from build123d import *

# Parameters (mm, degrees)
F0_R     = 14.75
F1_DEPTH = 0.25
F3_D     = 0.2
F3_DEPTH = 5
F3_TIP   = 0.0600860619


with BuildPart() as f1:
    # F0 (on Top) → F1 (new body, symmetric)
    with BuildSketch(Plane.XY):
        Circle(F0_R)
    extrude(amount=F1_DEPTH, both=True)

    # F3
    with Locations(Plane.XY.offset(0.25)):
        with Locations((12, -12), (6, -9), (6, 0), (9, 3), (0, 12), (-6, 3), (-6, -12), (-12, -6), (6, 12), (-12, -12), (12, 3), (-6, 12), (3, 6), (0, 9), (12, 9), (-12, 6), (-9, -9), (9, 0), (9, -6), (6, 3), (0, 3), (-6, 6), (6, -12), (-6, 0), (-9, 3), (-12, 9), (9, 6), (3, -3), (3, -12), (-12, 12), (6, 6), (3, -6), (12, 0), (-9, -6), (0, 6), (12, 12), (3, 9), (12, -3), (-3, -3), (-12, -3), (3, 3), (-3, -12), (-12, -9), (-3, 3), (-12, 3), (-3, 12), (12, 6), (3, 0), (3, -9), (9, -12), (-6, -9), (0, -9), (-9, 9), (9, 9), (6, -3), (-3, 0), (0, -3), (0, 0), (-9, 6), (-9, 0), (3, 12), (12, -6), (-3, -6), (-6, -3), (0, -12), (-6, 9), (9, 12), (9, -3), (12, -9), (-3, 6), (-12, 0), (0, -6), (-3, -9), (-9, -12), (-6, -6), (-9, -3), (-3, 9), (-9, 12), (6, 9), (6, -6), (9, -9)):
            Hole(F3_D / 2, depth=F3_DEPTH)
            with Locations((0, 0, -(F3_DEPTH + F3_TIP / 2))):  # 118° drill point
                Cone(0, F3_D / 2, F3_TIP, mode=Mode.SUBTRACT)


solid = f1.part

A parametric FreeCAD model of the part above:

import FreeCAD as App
import Part
import Sketcher
from FreeCAD import Vector
Q = App.Units.Quantity

doc = App.newDocument("Part")
params = doc.addObject("Spreadsheet::Sheet", "Params")
for row, (alias, value) in enumerate([
    ("sketch1_diameter", "29.5 mm"),
    ("pad1_length", "0.5 mm"),
    ("sketch2_diameter", "0.2 mm"),
    ("hole_diameter", "0.2 mm"),
    ("hole_depth", "5 mm"),
], start=1):
    params.set(f"A{row}", alias)
    params.set(f"B{row}", "=" + value)
    params.setAlias(f"B{row}", alias)

body = doc.addObject("PartDesign::Body", "Body")

# Sketch on XY plane
sketch1 = body.newObject("Sketcher::SketchObject", "Sketch")
sketch1.AttachmentSupport = (doc.getObject("XY_Plane"), [""])
sketch1.MapMode = "FlatFace"
sketch1.addGeometry(Part.Circle(Vector(0, 0, 0), Vector(0, 0, 1), 15), False)
sketch1.addConstraint([
    Sketcher.Constraint("Coincident", 0, 3, -1, 1),
    Sketcher.Constraint("Diameter", 0, Q("29.5 mm")),
])
sketch1.setExpression("Constraints[1]", "Params.sketch1_diameter")
pad1 = body.newObject("PartDesign::Pad", "Pad")
pad1.Profile = sketch1
pad1.setExpression("Length", "Params.pad1_length")
pad1.Midplane = True

# Sketch on XY plane
sketch2 = body.newObject("Sketcher::SketchObject", "Sketch001")
sketch2.AttachmentSupport = (doc.getObject("XY_Plane"), [""])
sketch2.MapMode = "FlatFace"
sketch2.AttachmentOffset = App.Placement(Vector(0, 0, 0.25), App.Rotation())
sketch2.addGeometry([
    Part.Circle(Vector(12, -12, 0), Vector(0, 0, 1), 0.1),  # 0
    Part.Circle(Vector(6, -9, 0), Vector(0, 0, 1), 0.1),  # 1
    Part.Circle(Vector(6, 0, 0), Vector(0, 0, 1), 0.1),  # 2
    Part.Circle(Vector(9, 3, 0), Vector(0, 0, 1), 0.1),  # 3
    Part.Circle(Vector(0, 12, 0), Vector(0, 0, 1), 0.1),  # 4
    Part.Circle(Vector(-6, 3, 0), Vector(0, 0, 1), 0.1),  # 5
    Part.Circle(Vector(-6, -12, 0), Vector(0, 0, 1), 0.1),  # 6
    Part.Circle(Vector(-12, -6, 0), Vector(0, 0, 1), 0.1),  # 7
    Part.Circle(Vector(6, 12, 0), Vector(0, 0, 1), 0.1),  # 8
    Part.Circle(Vector(-12, -12, 0), Vector(0, 0, 1), 0.1),  # 9
    Part.Circle(Vector(12, 3, 0), Vector(0, 0, 1), 0.1),  # 10
    Part.Circle(Vector(-6, 12, 0), Vector(0, 0, 1), 0.1),  # 11
    Part.Circle(Vector(3, 6, 0), Vector(0, 0, 1), 0.1),  # 12
    Part.Circle(Vector(0, 9, 0), Vector(0, 0, 1), 0.1),  # 13
    Part.Circle(Vector(12, 9, 0), Vector(0, 0, 1), 0.1),  # 14
    Part.Circle(Vector(-12, 6, 0), Vector(0, 0, 1), 0.1),  # 15
    Part.Circle(Vector(-9, -9, 0), Vector(0, 0, 1), 0.1),  # 16
    Part.Circle(Vector(9, 0, 0), Vector(0, 0, 1), 0.1),  # 17
    Part.Circle(Vector(9, -6, 0), Vector(0, 0, 1), 0.1),  # 18
    Part.Circle(Vector(6, 3, 0), Vector(0, 0, 1), 0.1),  # 19
    Part.Circle(Vector(0, 3, 0), Vector(0, 0, 1), 0.1),  # 20
    Part.Circle(Vector(-6, 6, 0), Vector(0, 0, 1), 0.1),  # 21
    Part.Circle(Vector(6, -12, 0), Vector(0, 0, 1), 0.1),  # 22
    Part.Circle(Vector(-6, 0, 0), Vector(0, 0, 1), 0.1),  # 23
    Part.Circle(Vector(-9, 3, 0), Vector(0, 0, 1), 0.1),  # 24
    Part.Circle(Vector(-12, 9, 0), Vector(0, 0, 1), 0.1),  # 25
    Part.Circle(Vector(9, 6, 0), Vector(0, 0, 1), 0.1),  # 26
    Part.Circle(Vector(3, -3, 0), Vector(0, 0, 1), 0.1),  # 27
    Part.Circle(Vector(3, -12, 0), Vector(0, 0, 1), 0.1),  # 28
    Part.Circle(Vector(-12, 12, 0), Vector(0, 0, 1), 0.1),  # 29
    Part.Circle(Vector(6, 6, 0), Vector(0, 0, 1), 0.1),  # 30
    Part.Circle(Vector(3, -6, 0), Vector(0, 0, 1), 0.1),  # 31
    Part.Circle(Vector(12, 0, 0), Vector(0, 0, 1), 0.1),  # 32
    Part.Circle(Vector(-9, -6, 0), Vector(0, 0, 1), 0.1),  # 33
    Part.Circle(Vector(0, 6, 0), Vector(0, 0, 1), 0.1),  # 34
    Part.Circle(Vector(12, 12, 0), Vector(0, 0, 1), 0.1),  # 35
    Part.Circle(Vector(3, 9, 0), Vector(0, 0, 1), 0.1),  # 36
    Part.Circle(Vector(12, -3, 0), Vector(0, 0, 1), 0.1),  # 37
    Part.Circle(Vector(-3, -3, 0), Vector(0, 0, 1), 0.1),  # 38
    Part.Circle(Vector(-12, -3, 0), Vector(0, 0, 1), 0.1),  # 39
    Part.Circle(Vector(3, 3, 0), Vector(0, 0, 1), 0.1),  # 40
    Part.Circle(Vector(-3, -12, 0), Vector(0, 0, 1), 0.1),  # 41
    Part.Circle(Vector(-12, -9, 0), Vector(0, 0, 1), 0.1),  # 42
    Part.Circle(Vector(-3, 3, 0), Vector(0, 0, 1), 0.1),  # 43
    Part.Circle(Vector(-12, 3, 0), Vector(0, 0, 1), 0.1),  # 44
    Part.Circle(Vector(-3, 12, 0), Vector(0, 0, 1), 0.1),  # 45
    Part.Circle(Vector(12, 6, 0), Vector(0, 0, 1), 0.1),  # 46
    Part.Circle(Vector(3, 0, 0), Vector(0, 0, 1), 0.1),  # 47
    Part.Circle(Vector(3, -9, 0), Vector(0, 0, 1), 0.1),  # 48
    Part.Circle(Vector(9, -12, 0), Vector(0, 0, 1), 0.1),  # 49
    Part.Circle(Vector(-6, -9, 0), Vector(0, 0, 1), 0.1),  # 50
    Part.Circle(Vector(0, -9, 0), Vector(0, 0, 1), 0.1),  # 51
    Part.Circle(Vector(-9, 9, 0), Vector(0, 0, 1), 0.1),  # 52
    Part.Circle(Vector(9, 9, 0), Vector(0, 0, 1), 0.1),  # 53
    Part.Circle(Vector(6, -3, 0), Vector(0, 0, 1), 0.1),  # 54
    Part.Circle(Vector(-3, 0, 0), Vector(0, 0, 1), 0.1),  # 55
    Part.Circle(Vector(0, -3, 0), Vector(0, 0, 1), 0.1),  # 56
    Part.Circle(Vector(0, 0, 0), Vector(0, 0, 1), 0.1),  # 57
    Part.Circle(Vector(-9, 6, 0), Vector(0, 0, 1), 0.1),  # 58
    Part.Circle(Vector(-9, 0, 0), Vector(0, 0, 1), 0.1),  # 59
    Part.Circle(Vector(3, 12, 0), Vector(0, 0, 1), 0.1),  # 60
    Part.Circle(Vector(12, -6, 0), Vector(0, 0, 1), 0.1),  # 61
    Part.Circle(Vector(-3, -6, 0), Vector(0, 0, 1), 0.1),  # 62
    Part.Circle(Vector(-6, -3, 0), Vector(0, 0, 1), 0.1),  # 63
    Part.Circle(Vector(0, -12, 0), Vector(0, 0, 1), 0.1),  # 64
    Part.Circle(Vector(-6, 9, 0), Vector(0, 0, 1), 0.1),  # 65
    Part.Circle(Vector(9, 12, 0), Vector(0, 0, 1), 0.1),  # 66
    Part.Circle(Vector(9, -3, 0), Vector(0, 0, 1), 0.1),  # 67
    Part.Circle(Vector(12, -9, 0), Vector(0, 0, 1), 0.1),  # 68
    Part.Circle(Vector(-3, 6, 0), Vector(0, 0, 1), 0.1),  # 69
    Part.Circle(Vector(-12, 0, 0), Vector(0, 0, 1), 0.1),  # 70
    Part.Circle(Vector(0, -6, 0), Vector(0, 0, 1), 0.1),  # 71
    Part.Circle(Vector(-3, -9, 0), Vector(0, 0, 1), 0.1),  # 72
    Part.Circle(Vector(-9, -12, 0), Vector(0, 0, 1), 0.1),  # 73
    Part.Circle(Vector(-6, -6, 0), Vector(0, 0, 1), 0.1),  # 74
    Part.Circle(Vector(-9, -3, 0), Vector(0, 0, 1), 0.1),  # 75
    Part.Circle(Vector(-3, 9, 0), Vector(0, 0, 1), 0.1),  # 76
    Part.Circle(Vector(-9, 12, 0), Vector(0, 0, 1), 0.1),  # 77
    Part.Circle(Vector(6, 9, 0), Vector(0, 0, 1), 0.1),  # 78
    Part.Circle(Vector(6, -6, 0), Vector(0, 0, 1), 0.1),  # 79
    Part.Circle(Vector(9, -9, 0), Vector(0, 0, 1), 0.1),  # 80
], False)
sketch2.addConstraint([
    Sketcher.Constraint("Coincident", 57, 3, -1, 1),
    Sketcher.Constraint("Equal", 0, 1),
    Sketcher.Constraint("Equal", 1, 2),
    Sketcher.Constraint("Equal", 2, 3),
    Sketcher.Constraint("Equal", 3, 4),
    Sketcher.Constraint("Equal", 4, 5),
    Sketcher.Constraint("Equal", 5, 6),
    Sketcher.Constraint("Equal", 6, 7),
    Sketcher.Constraint("Equal", 7, 8),
    Sketcher.Constraint("Equal", 8, 9),
    Sketcher.Constraint("Equal", 9, 10),
    Sketcher.Constraint("Equal", 10, 11),
    Sketcher.Constraint("Equal", 11, 12),
    Sketcher.Constraint("Equal", 12, 13),
    Sketcher.Constraint("Equal", 13, 14),
    Sketcher.Constraint("Equal", 14, 15),
    Sketcher.Constraint("Equal", 15, 16),
    Sketcher.Constraint("Equal", 16, 17),
    Sketcher.Constraint("Equal", 17, 18),
    Sketcher.Constraint("Equal", 18, 19),
    Sketcher.Constraint("Equal", 19, 20),
    Sketcher.Constraint("Equal", 20, 21),
    Sketcher.Constraint("Equal", 21, 22),
    Sketcher.Constraint("Equal", 22, 23),
    Sketcher.Constraint("Equal", 23, 24),
    Sketcher.Constraint("Equal", 24, 25),
    Sketcher.Constraint("Equal", 25, 26),
    Sketcher.Constraint("Equal", 26, 27),
    Sketcher.Constraint("Equal", 27, 28),
    Sketcher.Constraint("Equal", 28, 29),
    Sketcher.Constraint("Equal", 29, 30),
    Sketcher.Constraint("Equal", 30, 31),
    Sketcher.Constraint("Equal", 31, 32),
    Sketcher.Constraint("Equal", 32, 33),
    Sketcher.Constraint("Equal", 33, 34),
    Sketcher.Constraint("Equal", 34, 35),
    Sketcher.Constraint("Equal", 35, 36),
    Sketcher.Constraint("Equal", 36, 37),
    Sketcher.Constraint("Equal", 37, 38),
    Sketcher.Constraint("Equal", 38, 39),
    Sketcher.Constraint("Equal", 39, 40),
    Sketcher.Constraint("Equal", 40, 41),
    Sketcher.Constraint("Equal", 41, 42),
    Sketcher.Constraint("Equal", 42, 43),
    Sketcher.Constraint("Equal", 43, 44),
    Sketcher.Constraint("Equal", 44, 45),
    Sketcher.Constraint("Equal", 45, 46),
    Sketcher.Constraint("Equal", 46, 47),
    Sketcher.Constraint("Equal", 47, 48),
    Sketcher.Constraint("Equal", 48, 49),
    Sketcher.Constraint("Equal", 49, 50),
    Sketcher.Constraint("Equal", 50, 51),
    Sketcher.Constraint("Equal", 51, 52),
    Sketcher.Constraint("Equal", 52, 53),
    Sketcher.Constraint("Equal", 53, 54),
    Sketcher.Constraint("Equal", 54, 55),
    Sketcher.Constraint("Equal", 55, 56),
    Sketcher.Constraint("Equal", 56, 57),
    Sketcher.Constraint("Equal", 57, 58),
    Sketcher.Constraint("Equal", 58, 59),
    Sketcher.Constraint("Equal", 59, 60),
    Sketcher.Constraint("Equal", 60, 61),
    Sketcher.Constraint("Equal", 61, 62),
    Sketcher.Constraint("Equal", 62, 63),
    Sketcher.Constraint("Equal", 63, 64),
    Sketcher.Constraint("Equal", 64, 65),
    Sketcher.Constraint("Equal", 65, 66),
    Sketcher.Constraint("Equal", 66, 67),
    Sketcher.Constraint("Equal", 67, 68),
    Sketcher.Constraint("Equal", 68, 69),
    Sketcher.Constraint("Equal", 69, 70),
    Sketcher.Constraint("Equal", 70, 71),
    Sketcher.Constraint("Equal", 71, 72),
    Sketcher.Constraint("Equal", 72, 73),
    Sketcher.Constraint("Equal", 73, 74),
    Sketcher.Constraint("Equal", 74, 75),
    Sketcher.Constraint("Equal", 75, 76),
    Sketcher.Constraint("Equal", 76, 77),
    Sketcher.Constraint("Equal", 77, 78),
    Sketcher.Constraint("Equal", 78, 79),
    Sketcher.Constraint("Equal", 79, 80),
    Sketcher.Constraint("Symmetric", 6, 3, 8, 3, -1, 1),
    Sketcher.Constraint("Symmetric", 11, 3, 22, 3, -1, 1),
    Sketcher.Constraint("Symmetric", 2, 3, 23, 3, -1, 1),
    Sketcher.Constraint("Symmetric", 0, 3, 29, 3, -1, 1),
    Sketcher.Constraint("Symmetric", 26, 3, 33, 3, -1, 1),
    Sketcher.Constraint("Symmetric", 9, 3, 35, 3, -1, 1),
    Sketcher.Constraint("Symmetric", 10, 3, 39, 3, -1, 1),
    Sketcher.Constraint("Symmetric", 38, 3, 40, 3, -1, 1),
    Sketcher.Constraint("Symmetric", 14, 3, 42, 3, -1, 1),
    Sketcher.Constraint("Symmetric", 27, 3, 43, 3, -1, 1),
    Sketcher.Constraint("Symmetric", 37, 3, 44, 3, -1, 1),
    Sketcher.Constraint("Symmetric", 28, 3, 45, 3, -1, 1),
    Sketcher.Constraint("Symmetric", 7, 3, 46, 3, -1, 1),
    Sketcher.Constraint("Symmetric", 13, 3, 51, 3, -1, 1),
    Sketcher.Constraint("Symmetric", 16, 3, 53, 3, -1, 1),
    Sketcher.Constraint("Symmetric", 5, 3, 54, 3, -1, 1),
    Sketcher.Constraint("Symmetric", 47, 3, 55, 3, -1, 1),
    Sketcher.Constraint("Symmetric", 20, 3, 56, 3, -1, 1),
    Sketcher.Constraint("Symmetric", 18, 3, 58, 3, -1, 1),
    Sketcher.Constraint("Symmetric", 17, 3, 59, 3, -1, 1),
    Sketcher.Constraint("Symmetric", 41, 3, 60, 3, -1, 1),
    Sketcher.Constraint("Symmetric", 15, 3, 61, 3, -1, 1),
    Sketcher.Constraint("Symmetric", 12, 3, 62, 3, -1, 1),
    Sketcher.Constraint("Symmetric", 19, 3, 63, 3, -1, 1),
    Sketcher.Constraint("Symmetric", 4, 3, 64, 3, -1, 1),
    Sketcher.Constraint("Symmetric", 1, 3, 65, 3, -1, 1),
    Sketcher.Constraint("Symmetric", 24, 3, 67, 3, -1, 1),
    Sketcher.Constraint("Symmetric", 25, 3, 68, 3, -1, 1),
    Sketcher.Constraint("Symmetric", 31, 3, 69, 3, -1, 1),
    Sketcher.Constraint("Symmetric", 32, 3, 70, 3, -1, 1),
    Sketcher.Constraint("Symmetric", 34, 3, 71, 3, -1, 1),
    Sketcher.Constraint("Symmetric", 36, 3, 72, 3, -1, 1),
    Sketcher.Constraint("Symmetric", 66, 3, 73, 3, -1, 1),
    Sketcher.Constraint("Symmetric", 30, 3, 74, 3, -1, 1),
    Sketcher.Constraint("Symmetric", 3, 3, 75, 3, -1, 1),
    Sketcher.Constraint("Symmetric", 48, 3, 76, 3, -1, 1),
    Sketcher.Constraint("Symmetric", 49, 3, 77, 3, -1, 1),
    Sketcher.Constraint("Symmetric", 50, 3, 78, 3, -1, 1),
    Sketcher.Constraint("Symmetric", 21, 3, 79, 3, -1, 1),
    Sketcher.Constraint("Symmetric", 52, 3, 80, 3, -1, 1),
    Sketcher.Constraint("Symmetric", 0, 3, 9, 3, -2),
    Sketcher.Constraint("Symmetric", 8, 3, 11, 3, -2),
    Sketcher.Constraint("Symmetric", 5, 3, 19, 3, -2),
    Sketcher.Constraint("Symmetric", 3, 3, 24, 3, -2),
    Sketcher.Constraint("Symmetric", 14, 3, 25, 3, -2),
    Sketcher.Constraint("Symmetric", 21, 3, 30, 3, -2),
    Sketcher.Constraint("Symmetric", 18, 3, 33, 3, -2),
    Sketcher.Constraint("Symmetric", 27, 3, 38, 3, -2),
    Sketcher.Constraint("Symmetric", 37, 3, 39, 3, -2),
    Sketcher.Constraint("Symmetric", 28, 3, 41, 3, -2),
    Sketcher.Constraint("Symmetric", 15, 3, 46, 3, -2),
    Sketcher.Constraint("Symmetric", 1, 3, 50, 3, -2),
    Sketcher.Constraint("Symmetric", 52, 3, 53, 3, -2),
    Sketcher.Constraint("Symmetric", 31, 3, 62, 3, -2),
    Sketcher.Constraint("Symmetric", 48, 3, 72, 3, -2),
    Sketcher.Constraint("Symmetric", 49, 3, 73, 3, -2),
    Sketcher.Constraint("PointOnObject", 2, 3, -1),
    Sketcher.Constraint("PointOnObject", 4, 3, -2),
    Sketcher.Constraint("PointOnObject", 13, 3, -2),
    Sketcher.Constraint("PointOnObject", 17, 3, -1),
    Sketcher.Constraint("PointOnObject", 20, 3, -2),
    Sketcher.Constraint("PointOnObject", 32, 3, -1),
    Sketcher.Constraint("PointOnObject", 34, 3, -2),
    Sketcher.Constraint("PointOnObject", 47, 3, -1),
    Sketcher.Constraint("Horizontal", 3, 3, 5, 3),
    Sketcher.Constraint("Horizontal", 0, 3, 6, 3),
    Sketcher.Constraint("Horizontal", 4, 3, 8, 3),
    Sketcher.Constraint("Horizontal", 5, 3, 10, 3),
    Sketcher.Constraint("Horizontal", 13, 3, 14, 3),
    Sketcher.Constraint("Horizontal", 12, 3, 15, 3),
    Sketcher.Constraint("Horizontal", 1, 3, 16, 3),
    Sketcher.Constraint("Horizontal", 7, 3, 18, 3),
    Sketcher.Constraint("Horizontal", 19, 3, 20, 3),
    Sketcher.Constraint("Horizontal", 15, 3, 21, 3),
    Sketcher.Constraint("Horizontal", 22, 3, 28, 3),
    Sketcher.Constraint("Horizontal", 30, 3, 34, 3),
    Sketcher.Constraint("Horizontal", 25, 3, 36, 3),
    Sketcher.Constraint("Horizontal", 27, 3, 37, 3),
    Sketcher.Constraint("Horizontal", 16, 3, 42, 3),
    Sketcher.Constraint("Horizontal", 41, 3, 49, 3),
    Sketcher.Constraint("Vertical", 1, 3, 2, 3),
    Sketcher.Constraint("Vertical", 5, 3, 6, 3),
    Sketcher.Constraint("Vertical", 2, 3, 8, 3),
    Sketcher.Constraint("Vertical", 7, 3, 9, 3),
    Sketcher.Constraint("Vertical", 0, 3, 10, 3),
    Sketcher.Constraint("Vertical", 10, 3, 14, 3),
    Sketcher.Constraint("Vertical", 3, 3, 17, 3),
    Sketcher.Constraint("Vertical", 17, 3, 18, 3),
    Sketcher.Constraint("Vertical", 11, 3, 21, 3),
    Sketcher.Constraint("Vertical", 16, 3, 24, 3),
    Sketcher.Constraint("Vertical", 12, 3, 27, 3),
    Sketcher.Constraint("Vertical", 27, 3, 28, 3),
    Sketcher.Constraint("Vertical", 14, 3, 32, 3),
    Sketcher.Constraint("Vertical", 31, 3, 36, 3),
    Sketcher.Constraint("Vertical", 40, 3, 47, 3),
    Sketcher.Constraint("Vertical", 26, 3, 49, 3),
    Sketcher.Constraint("Diameter", 0, Q("0.2 mm")),
    Sketcher.Constraint("DistanceX", -1, 1, 0, 3, Q("12 mm")),
    Sketcher.Constraint("DistanceY", 0, 3, -1, 1, Q("12 mm")),
    Sketcher.Constraint("DistanceX", -1, 1, 1, 3, Q("6 mm")),
    Sketcher.Constraint("DistanceY", 1, 3, -1, 1, Q("9 mm")),
    Sketcher.Constraint("DistanceX", -1, 1, 3, 3, Q("9 mm")),
    Sketcher.Constraint("DistanceY", -1, 1, 3, 3, Q("3 mm")),
    Sketcher.Constraint("DistanceY", 7, 3, -1, 1, Q("6 mm")),
    Sketcher.Constraint("DistanceX", -1, 1, 12, 3, Q("3 mm")),
])
sketch2.setExpression("Constraints[177]", "Params.sketch2_diameter")
doc.recompute()
hole = body.newObject("PartDesign::Hole", "Hole")
hole.Profile = sketch2
hole.ThreadType = "None"
hole.setExpression("Diameter", "Params.hole_diameter")
hole.DepthType = "Dimension"
hole.setExpression("Depth", "Params.hole_depth")
hole.DrillPoint = "Angled"
hole.DrillPointAngle = 118

doc.recompute()
